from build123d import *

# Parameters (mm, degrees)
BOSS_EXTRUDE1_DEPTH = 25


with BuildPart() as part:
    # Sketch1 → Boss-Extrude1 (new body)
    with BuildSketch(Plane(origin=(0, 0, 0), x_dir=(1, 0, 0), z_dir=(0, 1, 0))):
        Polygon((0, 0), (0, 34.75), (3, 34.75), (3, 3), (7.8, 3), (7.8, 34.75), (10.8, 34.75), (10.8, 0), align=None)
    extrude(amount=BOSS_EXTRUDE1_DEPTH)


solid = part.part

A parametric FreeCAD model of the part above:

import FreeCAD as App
import Part
import Sketcher


def add_polygon(sketch, points):
    """Adds a closed chain of lines whose ends are joined by coincident constraints."""
    first, n = sketch.GeometryCount, len(points)
    for a, b in zip(points, points[1:] + points[:1]):
        sketch.addGeometry(Part.LineSegment(App.Vector(*a, 0), App.Vector(*b, 0)), False)
    for i in range(n):
        sketch.addConstraint(Sketcher.Constraint("Coincident", first + i, 2, first + (i + 1) % n, 1))

doc = App.newDocument("Part")
body = doc.addObject("PartDesign::Body", "Body")

# Sketch on XZ plane
sketch1 = body.newObject("Sketcher::SketchObject", "Sketch")
sketch1.AttachmentSupport = (doc.getObject("XZ_Plane"), [""])
sketch1.MapMode = "FlatFace"
add_polygon(sketch1, [(0, -34.75), (0, 0), (10.8, 0), (10.8, -34.75), (7.8, -34.75), (7.8, -3), (3, -3), (3, -34.75)])  # lines 0-7
sketch1.addConstraint([
    Sketcher.Constraint("Vertical", 0),
    Sketcher.Constraint("Horizontal", 1),
    Sketcher.Constraint("Vertical", 2),
    Sketcher.Constraint("Horizontal", 3),
    Sketcher.Constraint("Vertical", 4),
    Sketcher.Constraint("Horizontal", 5),
    Sketcher.Constraint("Vertical", 6),
    Sketcher.Constraint("Horizontal", 7),
    Sketcher.Constraint("Coincident", 0, 2, -1, 1),
    Sketcher.Constraint("Horizontal", 3, 2, 6, 2),
    Sketcher.Constraint("Equal", 3, 7),
    Sketcher.Constraint("DistanceX", 3, 2, 3, 1, 3.0),
    Sketcher.Constraint("DistanceX", 1, 1, 1, 2, 10.8),
    Sketcher.Constraint("DistanceY", 4, 2, -1, 1, 3.0),
    Sketcher.Constraint("DistanceY", 0, 1, 0, 2, 34.75),
])
pad1 = body.newObject("PartDesign::Pad", "Pad")
pad1.Profile = sketch1
pad1.Length = 25
pad1.Reversed = True

doc.recompute()
